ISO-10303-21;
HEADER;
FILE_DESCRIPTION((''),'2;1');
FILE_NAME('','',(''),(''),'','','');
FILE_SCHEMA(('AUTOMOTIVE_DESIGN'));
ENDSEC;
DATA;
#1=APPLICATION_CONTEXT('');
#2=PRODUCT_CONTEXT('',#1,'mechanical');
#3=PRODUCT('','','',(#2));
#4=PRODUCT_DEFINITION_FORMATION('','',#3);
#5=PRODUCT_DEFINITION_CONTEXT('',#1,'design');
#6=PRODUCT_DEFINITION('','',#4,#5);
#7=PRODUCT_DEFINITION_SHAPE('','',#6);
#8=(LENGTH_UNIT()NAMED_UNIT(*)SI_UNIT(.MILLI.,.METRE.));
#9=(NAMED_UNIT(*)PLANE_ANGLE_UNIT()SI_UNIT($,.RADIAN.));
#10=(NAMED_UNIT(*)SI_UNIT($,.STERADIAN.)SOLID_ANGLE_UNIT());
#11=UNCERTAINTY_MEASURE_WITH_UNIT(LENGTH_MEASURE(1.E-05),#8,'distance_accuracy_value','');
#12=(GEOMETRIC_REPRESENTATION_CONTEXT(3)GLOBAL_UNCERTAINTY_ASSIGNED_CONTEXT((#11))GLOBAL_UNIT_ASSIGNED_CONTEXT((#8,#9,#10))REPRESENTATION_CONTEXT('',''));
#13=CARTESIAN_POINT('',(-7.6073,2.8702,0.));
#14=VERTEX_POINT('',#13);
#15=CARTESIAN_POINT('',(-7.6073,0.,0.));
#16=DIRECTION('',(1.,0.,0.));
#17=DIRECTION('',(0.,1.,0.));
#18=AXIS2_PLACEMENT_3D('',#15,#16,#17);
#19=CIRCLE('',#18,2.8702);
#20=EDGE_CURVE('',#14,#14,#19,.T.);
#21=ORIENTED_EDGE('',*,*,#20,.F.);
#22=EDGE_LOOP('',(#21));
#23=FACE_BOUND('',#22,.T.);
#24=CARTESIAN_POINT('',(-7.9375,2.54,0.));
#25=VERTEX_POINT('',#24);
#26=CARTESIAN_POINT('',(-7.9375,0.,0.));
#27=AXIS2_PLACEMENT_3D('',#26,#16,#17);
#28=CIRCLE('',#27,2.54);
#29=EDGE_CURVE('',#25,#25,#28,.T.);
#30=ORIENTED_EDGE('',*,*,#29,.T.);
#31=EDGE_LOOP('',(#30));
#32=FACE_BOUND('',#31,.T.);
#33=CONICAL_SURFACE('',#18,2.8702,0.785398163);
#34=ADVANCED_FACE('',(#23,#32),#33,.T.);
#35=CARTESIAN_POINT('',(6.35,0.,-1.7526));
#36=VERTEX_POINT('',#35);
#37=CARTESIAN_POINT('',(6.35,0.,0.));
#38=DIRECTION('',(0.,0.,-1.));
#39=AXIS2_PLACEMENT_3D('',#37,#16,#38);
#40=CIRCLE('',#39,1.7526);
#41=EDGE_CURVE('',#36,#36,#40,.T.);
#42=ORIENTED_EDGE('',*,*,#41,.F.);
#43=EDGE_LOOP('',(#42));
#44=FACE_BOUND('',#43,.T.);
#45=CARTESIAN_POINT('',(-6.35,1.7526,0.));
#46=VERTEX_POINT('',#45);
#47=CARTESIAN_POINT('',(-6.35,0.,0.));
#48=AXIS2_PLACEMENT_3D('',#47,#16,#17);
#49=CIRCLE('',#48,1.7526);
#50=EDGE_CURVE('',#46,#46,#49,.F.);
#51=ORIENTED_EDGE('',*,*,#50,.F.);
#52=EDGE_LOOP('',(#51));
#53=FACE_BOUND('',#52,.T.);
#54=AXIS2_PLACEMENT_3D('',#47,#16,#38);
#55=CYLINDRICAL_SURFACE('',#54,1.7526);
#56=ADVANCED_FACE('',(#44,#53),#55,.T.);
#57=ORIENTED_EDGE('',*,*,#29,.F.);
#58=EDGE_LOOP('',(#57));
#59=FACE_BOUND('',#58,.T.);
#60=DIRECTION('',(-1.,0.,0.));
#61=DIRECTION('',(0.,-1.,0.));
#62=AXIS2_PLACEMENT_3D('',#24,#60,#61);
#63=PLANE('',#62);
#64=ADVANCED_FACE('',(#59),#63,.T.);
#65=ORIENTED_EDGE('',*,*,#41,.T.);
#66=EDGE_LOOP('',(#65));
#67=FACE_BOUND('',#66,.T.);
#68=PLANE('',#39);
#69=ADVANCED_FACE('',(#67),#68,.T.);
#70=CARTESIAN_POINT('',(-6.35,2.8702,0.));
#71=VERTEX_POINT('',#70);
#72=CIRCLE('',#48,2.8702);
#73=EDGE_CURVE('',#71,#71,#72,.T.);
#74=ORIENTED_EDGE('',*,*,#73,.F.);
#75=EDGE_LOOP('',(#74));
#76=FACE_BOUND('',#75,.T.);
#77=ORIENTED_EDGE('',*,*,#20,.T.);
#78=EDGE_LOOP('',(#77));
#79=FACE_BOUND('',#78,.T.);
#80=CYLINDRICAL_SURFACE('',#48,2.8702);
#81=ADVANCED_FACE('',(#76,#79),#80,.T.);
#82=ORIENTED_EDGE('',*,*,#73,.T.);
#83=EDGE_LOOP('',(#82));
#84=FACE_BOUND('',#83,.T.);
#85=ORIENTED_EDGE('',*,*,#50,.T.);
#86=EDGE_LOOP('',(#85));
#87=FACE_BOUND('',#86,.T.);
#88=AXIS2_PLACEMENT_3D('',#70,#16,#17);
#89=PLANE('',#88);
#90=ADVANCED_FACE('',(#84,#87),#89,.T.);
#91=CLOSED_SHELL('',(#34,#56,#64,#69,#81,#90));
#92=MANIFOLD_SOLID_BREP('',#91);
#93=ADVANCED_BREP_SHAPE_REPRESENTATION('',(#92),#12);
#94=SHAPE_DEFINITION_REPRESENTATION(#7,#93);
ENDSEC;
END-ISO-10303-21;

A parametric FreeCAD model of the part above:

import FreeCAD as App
import Part
import Sketcher
from FreeCAD import Vector
Q = App.Units.Quantity

doc = App.newDocument("Part")
body = doc.addObject("PartDesign::Body", "Body")

# Sketch on YZ plane
sketch1 = body.newObject("Sketcher::SketchObject", "Sketch")
sketch1.AttachmentSupport = (doc.getObject("YZ_Plane"), [""])
sketch1.MapMode = "FlatFace"
sketch1.AttachmentOffset = App.Placement(Vector(0, 0, 0.25 * 25.4), App.Rotation())
sketch1.addGeometry(Part.Circle(Vector(0, 0, 0), Vector(0, 0, 1), 1.8), False)
sketch1.addConstraint(Sketcher.Constraint("Coincident", 0, 3, -1, 1))
sketch1.addConstraint(Sketcher.Constraint("Diameter", 0, Q("0.138 in")))
pad1 = body.newObject("PartDesign::Pad", "Pad")
pad1.Profile = sketch1
pad1.Length = Q("0.5 in")
pad1.Reversed = True

# Sketch on XY plane
sketch2 = body.newObject("Sketcher::SketchObject", "Sketch001")
sketch2.AttachmentSupport = (doc.getObject("XY_Plane"), [""])
sketch2.MapMode = "FlatFace"
sketch2.addGeometry(Part.LineSegment(Vector(-7.61, 2.87, 0), Vector(-7.94, 2.54, 0)), False)
sketch2.addGeometry(Part.LineSegment(Vector(-7.94, 2.54, 0), Vector(-7.94, 0, 0)), False)
sketch2.addGeometry(Part.LineSegment(Vector(-7.94, 0, 0), Vector(-6.35, 0, 0)), False)
sketch2.addGeometry(Part.LineSegment(Vector(-6.35, 0, 0), Vector(-6.35, 2.87, 0)), False)
sketch2.addGeometry(Part.LineSegment(Vector(-6.35, 2.87, 0), Vector(-7.61, 2.87, 0)), False)
sketch2.addConstraint(Sketcher.Constraint("Coincident", 0, 2, 1, 1))
sketch2.addConstraint(Sketcher.Constraint("Coincident", 1, 2, 2, 1))
sketch2.addConstraint(Sketcher.Constraint("Coincident", 2, 2, 3, 1))
sketch2.addConstraint(Sketcher.Constraint("Coincident", 3, 2, 4, 1))
sketch2.addConstraint(Sketcher.Constraint("Coincident", 4, 2, 0, 1))
sketch2.addConstraint(Sketcher.Constraint("Vertical", 1))
sketch2.addConstraint(Sketcher.Constraint("Horizontal", 2))
sketch2.addConstraint(Sketcher.Constraint("Vertical", 3))
sketch2.addConstraint(Sketcher.Constraint("Horizontal", 4))
sketch2.addConstraint(Sketcher.Constraint("PointOnObject", 1, 2, -1))
sketch2.addConstraint(Sketcher.Constraint("DistanceY", 1, 2, 1, 1, Q("0.1 in")))
sketch2.addConstraint(Sketcher.Constraint("Angle", 0, Q("-135 deg")))
sketch2.addConstraint(Sketcher.Constraint("DistanceX", 2, 1, 2, 2, Q("0.0625 in")))
sketch2.addConstraint(Sketcher.Constraint("DistanceY", 3, 1, 3, 2, Q("0.113 in")))
sketch2.addConstraint(Sketcher.Constraint("DistanceX", 2, 2, -1, 1, Q("0.25 in")))
revolution = body.newObject("PartDesign::Revolution", "Revolution")
revolution.Profile = sketch2
revolution.ReferenceAxis = (sketch2, ["H_Axis"])
revolution.Angle = 360

doc.recompute()
